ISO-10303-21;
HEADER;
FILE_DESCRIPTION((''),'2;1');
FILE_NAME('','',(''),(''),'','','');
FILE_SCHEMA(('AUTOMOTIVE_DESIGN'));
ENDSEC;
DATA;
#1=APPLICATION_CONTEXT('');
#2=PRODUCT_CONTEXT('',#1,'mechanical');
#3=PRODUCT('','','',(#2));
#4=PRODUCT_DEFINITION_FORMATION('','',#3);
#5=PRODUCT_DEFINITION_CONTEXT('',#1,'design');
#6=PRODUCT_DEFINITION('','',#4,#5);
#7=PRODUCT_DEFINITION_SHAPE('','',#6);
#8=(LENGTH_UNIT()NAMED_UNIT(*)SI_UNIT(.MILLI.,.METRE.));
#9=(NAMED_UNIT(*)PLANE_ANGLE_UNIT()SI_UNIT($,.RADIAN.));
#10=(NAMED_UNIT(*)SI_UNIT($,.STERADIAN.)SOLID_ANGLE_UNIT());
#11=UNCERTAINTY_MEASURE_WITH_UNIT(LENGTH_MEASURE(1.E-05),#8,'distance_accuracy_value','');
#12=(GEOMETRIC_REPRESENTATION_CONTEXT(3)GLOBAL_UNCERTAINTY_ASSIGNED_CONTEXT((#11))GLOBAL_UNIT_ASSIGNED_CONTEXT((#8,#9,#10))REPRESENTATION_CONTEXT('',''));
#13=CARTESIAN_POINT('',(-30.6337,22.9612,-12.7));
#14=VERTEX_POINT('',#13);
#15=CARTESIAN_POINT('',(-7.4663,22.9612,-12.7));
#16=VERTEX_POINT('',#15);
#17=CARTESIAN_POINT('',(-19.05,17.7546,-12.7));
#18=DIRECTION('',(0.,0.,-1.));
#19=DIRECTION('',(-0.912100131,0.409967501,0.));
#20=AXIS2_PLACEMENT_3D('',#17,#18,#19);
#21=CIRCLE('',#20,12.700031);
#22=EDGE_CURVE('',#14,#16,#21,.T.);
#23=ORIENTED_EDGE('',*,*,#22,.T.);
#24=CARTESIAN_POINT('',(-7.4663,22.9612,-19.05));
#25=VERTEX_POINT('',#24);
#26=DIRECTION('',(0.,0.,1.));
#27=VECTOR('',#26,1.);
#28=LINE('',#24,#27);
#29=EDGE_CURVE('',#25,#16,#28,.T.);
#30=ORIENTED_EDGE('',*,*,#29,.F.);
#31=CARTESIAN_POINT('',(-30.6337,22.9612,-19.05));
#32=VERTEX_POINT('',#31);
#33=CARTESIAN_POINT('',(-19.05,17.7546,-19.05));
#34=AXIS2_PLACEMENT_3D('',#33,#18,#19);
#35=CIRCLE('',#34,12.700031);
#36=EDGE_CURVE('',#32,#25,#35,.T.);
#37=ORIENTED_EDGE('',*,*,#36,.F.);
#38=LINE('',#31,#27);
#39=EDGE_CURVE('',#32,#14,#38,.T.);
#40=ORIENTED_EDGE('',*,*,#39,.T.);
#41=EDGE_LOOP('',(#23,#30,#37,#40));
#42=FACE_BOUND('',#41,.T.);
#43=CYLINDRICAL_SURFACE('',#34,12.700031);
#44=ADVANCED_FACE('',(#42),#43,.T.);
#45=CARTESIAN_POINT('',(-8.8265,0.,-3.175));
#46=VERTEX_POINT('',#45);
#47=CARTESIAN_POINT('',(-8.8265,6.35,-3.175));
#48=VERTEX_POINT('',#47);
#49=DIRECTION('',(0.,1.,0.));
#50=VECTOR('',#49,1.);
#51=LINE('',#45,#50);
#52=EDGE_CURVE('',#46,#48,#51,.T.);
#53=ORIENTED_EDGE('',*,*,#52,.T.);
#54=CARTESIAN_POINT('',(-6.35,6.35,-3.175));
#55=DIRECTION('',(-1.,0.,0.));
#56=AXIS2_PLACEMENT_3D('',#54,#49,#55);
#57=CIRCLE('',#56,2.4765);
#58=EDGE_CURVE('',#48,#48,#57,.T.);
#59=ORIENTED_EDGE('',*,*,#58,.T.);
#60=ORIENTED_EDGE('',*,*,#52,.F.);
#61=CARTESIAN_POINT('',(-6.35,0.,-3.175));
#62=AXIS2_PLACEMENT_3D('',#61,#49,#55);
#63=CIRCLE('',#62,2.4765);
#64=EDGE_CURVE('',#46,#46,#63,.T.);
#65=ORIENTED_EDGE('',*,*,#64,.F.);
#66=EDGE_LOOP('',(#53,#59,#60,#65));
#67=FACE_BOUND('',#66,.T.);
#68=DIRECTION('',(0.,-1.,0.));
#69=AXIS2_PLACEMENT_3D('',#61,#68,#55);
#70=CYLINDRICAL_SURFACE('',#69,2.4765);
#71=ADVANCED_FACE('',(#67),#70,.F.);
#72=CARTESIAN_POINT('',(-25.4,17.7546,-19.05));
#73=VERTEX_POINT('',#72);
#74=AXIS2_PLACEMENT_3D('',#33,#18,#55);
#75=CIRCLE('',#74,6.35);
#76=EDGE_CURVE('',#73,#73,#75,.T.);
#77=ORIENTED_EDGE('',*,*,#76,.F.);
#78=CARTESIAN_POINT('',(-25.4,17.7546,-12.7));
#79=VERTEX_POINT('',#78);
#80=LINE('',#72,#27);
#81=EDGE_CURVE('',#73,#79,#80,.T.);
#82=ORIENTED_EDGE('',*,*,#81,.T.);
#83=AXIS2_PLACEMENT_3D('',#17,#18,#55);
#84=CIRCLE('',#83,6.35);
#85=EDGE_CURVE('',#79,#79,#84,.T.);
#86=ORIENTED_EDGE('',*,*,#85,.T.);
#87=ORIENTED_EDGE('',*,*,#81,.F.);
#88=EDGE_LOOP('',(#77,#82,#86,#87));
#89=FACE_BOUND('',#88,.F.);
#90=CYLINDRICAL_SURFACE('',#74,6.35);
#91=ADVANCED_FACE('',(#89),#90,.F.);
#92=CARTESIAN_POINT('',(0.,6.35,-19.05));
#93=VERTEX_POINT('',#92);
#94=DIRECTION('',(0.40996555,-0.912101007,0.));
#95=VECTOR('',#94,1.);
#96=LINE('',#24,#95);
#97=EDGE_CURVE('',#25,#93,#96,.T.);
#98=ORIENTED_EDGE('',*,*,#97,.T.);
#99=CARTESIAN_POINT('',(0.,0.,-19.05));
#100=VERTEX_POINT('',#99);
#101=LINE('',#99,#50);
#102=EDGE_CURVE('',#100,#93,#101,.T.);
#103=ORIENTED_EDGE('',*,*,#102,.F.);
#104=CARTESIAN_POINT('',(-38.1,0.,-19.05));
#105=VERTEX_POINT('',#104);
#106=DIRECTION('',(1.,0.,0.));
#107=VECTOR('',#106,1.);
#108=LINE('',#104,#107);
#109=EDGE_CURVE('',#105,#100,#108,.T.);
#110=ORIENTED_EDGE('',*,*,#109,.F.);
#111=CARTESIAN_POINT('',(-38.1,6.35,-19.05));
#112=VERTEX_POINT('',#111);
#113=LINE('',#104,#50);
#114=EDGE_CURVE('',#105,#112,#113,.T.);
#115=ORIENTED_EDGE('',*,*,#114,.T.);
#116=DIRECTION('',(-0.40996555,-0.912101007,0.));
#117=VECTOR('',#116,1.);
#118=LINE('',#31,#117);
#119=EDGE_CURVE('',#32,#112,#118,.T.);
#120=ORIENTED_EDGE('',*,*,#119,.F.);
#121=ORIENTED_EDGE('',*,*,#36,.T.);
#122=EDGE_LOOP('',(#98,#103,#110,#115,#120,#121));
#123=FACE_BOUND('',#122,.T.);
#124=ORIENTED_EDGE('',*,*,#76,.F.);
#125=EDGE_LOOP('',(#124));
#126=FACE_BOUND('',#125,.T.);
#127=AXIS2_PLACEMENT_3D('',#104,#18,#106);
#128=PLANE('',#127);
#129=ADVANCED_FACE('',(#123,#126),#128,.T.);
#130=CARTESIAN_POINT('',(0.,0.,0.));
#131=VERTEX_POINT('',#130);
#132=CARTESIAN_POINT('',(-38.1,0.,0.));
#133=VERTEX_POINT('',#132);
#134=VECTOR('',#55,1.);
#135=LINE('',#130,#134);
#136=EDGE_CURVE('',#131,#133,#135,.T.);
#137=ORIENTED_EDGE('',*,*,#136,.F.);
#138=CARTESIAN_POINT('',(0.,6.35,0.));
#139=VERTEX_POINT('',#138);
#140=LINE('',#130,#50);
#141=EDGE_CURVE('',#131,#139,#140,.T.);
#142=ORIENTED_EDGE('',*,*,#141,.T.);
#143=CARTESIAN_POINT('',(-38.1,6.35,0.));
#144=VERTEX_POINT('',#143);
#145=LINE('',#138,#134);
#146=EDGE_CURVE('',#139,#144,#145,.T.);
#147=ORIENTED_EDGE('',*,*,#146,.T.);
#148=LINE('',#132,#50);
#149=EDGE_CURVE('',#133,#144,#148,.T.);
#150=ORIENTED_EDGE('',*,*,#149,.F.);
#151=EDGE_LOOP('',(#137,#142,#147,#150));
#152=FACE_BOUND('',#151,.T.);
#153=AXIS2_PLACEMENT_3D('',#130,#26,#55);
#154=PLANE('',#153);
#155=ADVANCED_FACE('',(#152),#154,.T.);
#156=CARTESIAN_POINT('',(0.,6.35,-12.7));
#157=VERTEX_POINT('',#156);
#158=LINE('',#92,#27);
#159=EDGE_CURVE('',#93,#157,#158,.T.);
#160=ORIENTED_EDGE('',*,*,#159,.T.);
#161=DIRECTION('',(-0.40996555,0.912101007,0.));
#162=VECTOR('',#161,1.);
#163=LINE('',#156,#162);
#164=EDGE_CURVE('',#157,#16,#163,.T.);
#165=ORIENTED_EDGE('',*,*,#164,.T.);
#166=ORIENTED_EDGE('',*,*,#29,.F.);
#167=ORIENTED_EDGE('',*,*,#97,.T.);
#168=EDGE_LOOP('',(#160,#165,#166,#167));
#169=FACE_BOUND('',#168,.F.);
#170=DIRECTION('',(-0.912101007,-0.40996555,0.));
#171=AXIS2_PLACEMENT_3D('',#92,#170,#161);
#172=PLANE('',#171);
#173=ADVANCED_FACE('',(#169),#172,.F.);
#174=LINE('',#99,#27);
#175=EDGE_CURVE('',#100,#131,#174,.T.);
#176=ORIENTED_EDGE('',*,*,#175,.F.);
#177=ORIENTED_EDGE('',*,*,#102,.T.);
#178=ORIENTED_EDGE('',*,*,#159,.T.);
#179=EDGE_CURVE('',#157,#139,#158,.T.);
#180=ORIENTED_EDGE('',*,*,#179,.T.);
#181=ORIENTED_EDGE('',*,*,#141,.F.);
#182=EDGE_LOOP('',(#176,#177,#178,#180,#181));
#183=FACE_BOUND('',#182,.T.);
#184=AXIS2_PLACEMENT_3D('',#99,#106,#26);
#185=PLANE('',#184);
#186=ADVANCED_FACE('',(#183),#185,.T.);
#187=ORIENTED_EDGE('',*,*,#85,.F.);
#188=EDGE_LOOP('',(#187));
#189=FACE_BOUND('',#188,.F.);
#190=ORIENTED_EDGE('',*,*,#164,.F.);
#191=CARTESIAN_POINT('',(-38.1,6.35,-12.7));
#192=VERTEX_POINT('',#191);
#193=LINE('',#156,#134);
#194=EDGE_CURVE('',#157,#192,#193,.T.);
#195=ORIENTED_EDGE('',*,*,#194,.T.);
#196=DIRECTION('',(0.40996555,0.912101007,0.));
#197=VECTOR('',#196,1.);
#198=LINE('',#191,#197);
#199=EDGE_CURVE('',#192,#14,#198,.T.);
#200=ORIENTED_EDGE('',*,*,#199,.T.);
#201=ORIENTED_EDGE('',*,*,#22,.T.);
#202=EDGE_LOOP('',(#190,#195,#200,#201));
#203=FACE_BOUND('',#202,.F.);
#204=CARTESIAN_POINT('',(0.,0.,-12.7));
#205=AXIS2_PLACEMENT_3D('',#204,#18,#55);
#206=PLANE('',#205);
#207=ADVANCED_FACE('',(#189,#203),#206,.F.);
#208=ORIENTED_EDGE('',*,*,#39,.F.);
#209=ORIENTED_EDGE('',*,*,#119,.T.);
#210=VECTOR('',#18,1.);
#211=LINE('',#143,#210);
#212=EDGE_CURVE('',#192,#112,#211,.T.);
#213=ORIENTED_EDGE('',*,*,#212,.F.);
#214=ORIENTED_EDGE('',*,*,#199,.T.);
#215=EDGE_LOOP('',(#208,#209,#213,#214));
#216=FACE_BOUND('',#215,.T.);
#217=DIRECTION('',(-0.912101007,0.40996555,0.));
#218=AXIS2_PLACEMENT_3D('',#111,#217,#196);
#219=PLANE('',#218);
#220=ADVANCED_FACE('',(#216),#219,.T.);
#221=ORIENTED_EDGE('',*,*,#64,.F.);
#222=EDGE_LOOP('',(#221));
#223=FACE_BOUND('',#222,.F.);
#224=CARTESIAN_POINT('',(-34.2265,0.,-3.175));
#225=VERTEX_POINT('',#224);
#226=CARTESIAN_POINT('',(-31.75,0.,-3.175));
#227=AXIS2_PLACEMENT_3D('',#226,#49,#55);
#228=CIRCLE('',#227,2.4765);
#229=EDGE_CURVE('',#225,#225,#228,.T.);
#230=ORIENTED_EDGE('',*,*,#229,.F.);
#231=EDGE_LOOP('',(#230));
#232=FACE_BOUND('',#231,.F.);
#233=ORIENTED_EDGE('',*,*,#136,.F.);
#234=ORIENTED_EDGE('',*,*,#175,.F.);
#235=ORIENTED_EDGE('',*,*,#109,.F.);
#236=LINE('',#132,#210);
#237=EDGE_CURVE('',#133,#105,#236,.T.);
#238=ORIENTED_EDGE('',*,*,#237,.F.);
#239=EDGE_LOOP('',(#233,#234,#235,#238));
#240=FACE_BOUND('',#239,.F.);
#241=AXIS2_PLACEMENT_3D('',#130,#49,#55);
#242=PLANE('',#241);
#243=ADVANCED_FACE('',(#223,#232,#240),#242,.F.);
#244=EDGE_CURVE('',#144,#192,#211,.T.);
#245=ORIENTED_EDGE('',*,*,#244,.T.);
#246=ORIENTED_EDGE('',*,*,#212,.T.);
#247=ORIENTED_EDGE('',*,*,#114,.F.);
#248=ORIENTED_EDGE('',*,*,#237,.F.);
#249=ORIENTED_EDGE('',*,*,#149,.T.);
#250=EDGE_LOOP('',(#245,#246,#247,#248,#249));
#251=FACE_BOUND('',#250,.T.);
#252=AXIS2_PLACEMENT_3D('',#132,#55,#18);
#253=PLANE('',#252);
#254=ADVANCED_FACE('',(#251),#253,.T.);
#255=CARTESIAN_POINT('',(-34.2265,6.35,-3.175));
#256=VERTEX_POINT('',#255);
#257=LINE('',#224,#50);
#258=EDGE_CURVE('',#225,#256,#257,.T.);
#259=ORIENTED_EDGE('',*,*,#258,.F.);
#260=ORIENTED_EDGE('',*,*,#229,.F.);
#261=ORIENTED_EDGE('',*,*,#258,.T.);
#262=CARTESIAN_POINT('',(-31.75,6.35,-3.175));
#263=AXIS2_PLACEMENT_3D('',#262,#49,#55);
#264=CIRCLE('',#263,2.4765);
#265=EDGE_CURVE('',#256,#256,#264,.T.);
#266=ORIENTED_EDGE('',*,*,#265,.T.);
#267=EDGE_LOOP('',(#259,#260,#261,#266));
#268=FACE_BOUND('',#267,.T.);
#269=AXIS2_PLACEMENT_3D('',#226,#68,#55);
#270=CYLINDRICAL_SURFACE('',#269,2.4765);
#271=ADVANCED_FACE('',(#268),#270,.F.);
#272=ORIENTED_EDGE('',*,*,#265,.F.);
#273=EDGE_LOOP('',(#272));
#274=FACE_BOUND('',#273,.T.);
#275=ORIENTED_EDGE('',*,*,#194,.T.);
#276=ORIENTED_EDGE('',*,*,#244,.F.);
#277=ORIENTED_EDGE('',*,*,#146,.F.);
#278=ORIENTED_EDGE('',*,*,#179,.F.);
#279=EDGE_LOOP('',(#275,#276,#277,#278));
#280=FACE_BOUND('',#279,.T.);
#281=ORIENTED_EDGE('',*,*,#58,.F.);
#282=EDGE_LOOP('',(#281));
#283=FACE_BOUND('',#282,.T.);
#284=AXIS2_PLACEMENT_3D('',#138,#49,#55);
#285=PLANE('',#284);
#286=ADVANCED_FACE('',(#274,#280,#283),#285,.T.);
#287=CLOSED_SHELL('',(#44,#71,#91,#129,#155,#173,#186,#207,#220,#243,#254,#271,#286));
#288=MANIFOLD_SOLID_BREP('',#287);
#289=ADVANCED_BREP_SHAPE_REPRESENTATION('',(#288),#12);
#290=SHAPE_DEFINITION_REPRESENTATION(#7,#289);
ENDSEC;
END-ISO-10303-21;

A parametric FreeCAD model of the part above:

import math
import FreeCAD as App
import Part
import Sketcher
Q = App.Units.Quantity


def add_polygon(sketch, points):
    """Adds a closed chain of lines whose ends are joined by coincident constraints."""
    first, n = sketch.GeometryCount, len(points)
    for a, b in zip(points, points[1:] + points[:1]):
        sketch.addGeometry(Part.LineSegment(App.Vector(*a, 0), App.Vector(*b, 0)), False)
    for i in range(n):
        sketch.addConstraint(Sketcher.Constraint("Coincident", first + i, 2, first + (i + 1) % n, 1))

doc = App.newDocument("Part")
params = doc.addObject("Spreadsheet::Sheet", "Params")
for row, (alias, value) in enumerate([
    ("sketch1_diameter", "0.195 in"),
    ("sketch1_height", "0.75 in"),
    ("pad1_length", "0.25 in"),
    ("sketch2_diameter", "0.5 in"),
    ("sketch2_radius", "0.5 in"),
    ("sketch2_width", "1.5 in"),
    ("sketch2_length", "0.717 in"),
    ("pad2_length", "0.25 in"),
], start=1):
    params.set(f"A{row}", alias)
    params.set(f"B{row}", "=" + value)
    params.setAlias(f"B{row}", alias)

body = doc.addObject("PartDesign::Body", "Body")

sketch1 = doc.addObject("Sketcher::SketchObject", "Sketch")
body.addObject(sketch1)
sketch1.AttachmentSupport = (doc.XZ_Plane, [""])
sketch1.MapMode = "FlatFace"
add_polygon(sketch1, [(-38.1, 0), (0, 0), (0, -19.05), (-38.1, -19.05)])
sketch1.addGeometry(Part.Circle(App.Vector(-6.35, -3.175, 0), App.Vector(0, 0, 1), 2.4765), False)
sketch1.addGeometry(Part.Circle(App.Vector(-31.75, -3.175, 0), App.Vector(0, 0, 1), 2.4765), False)
sketch1.addConstraint([
    Sketcher.Constraint("Horizontal", 0),
    Sketcher.Constraint("Vertical", 1),
    Sketcher.Constraint("Horizontal", 2),
    Sketcher.Constraint("Vertical", 3),
    Sketcher.Constraint("Coincident", 0, 2, -1, 1),
    Sketcher.Constraint("Equal", 4, 5),
    Sketcher.Constraint("Horizontal", 4, 3, 5, 3),
    Sketcher.Constraint("Diameter", 4, Q("0.195 in")),
    Sketcher.Constraint("DistanceX", 5, 3, 4, 3, Q("1 in")),
    Sketcher.Constraint("DistanceY", 1, 2, 1, 1, Q("0.75 in")),
    Sketcher.Constraint("DistanceX", 4, 3, -1, 1, Q("0.25 in")),
    Sketcher.Constraint("DistanceX", 2, 2, 5, 3, Q("0.25 in")),
    Sketcher.Constraint("DistanceY", 4, 3, -1, 1, Q("0.125 in")),
])
sketch1.setExpression("Constraints[11]", "Params.sketch1_diameter")
sketch1.setExpression("Constraints[13]", "Params.sketch1_height")
pad1 = doc.addObject("PartDesign::Pad", "Pad")
body.addObject(pad1)
pad1.Profile = sketch1
pad1.setExpression("Length", "Params.pad1_length")
pad1.Reversed = True

sketch2 = doc.addObject("Sketcher::SketchObject", "Sketch001")
body.addObject(sketch2)
sketch2.AttachmentSupport = (doc.XY_Plane, [""])
sketch2.MapMode = "FlatFace"
sketch2.AttachmentOffset = App.Placement(App.Vector(0, 0, -0.75 * 25.4), App.Rotation())
sketch2.addGeometry([
    Part.LineSegment(App.Vector(-38.1, 6.35, 0), App.Vector(-30.6337, 22.9612, 0)),
    Part.ArcOfCircle(Part.Circle(App.Vector(-19.05, 17.7546, 0), App.Vector(0, 0, 1), 12.700031), math.radians(24.202793), math.radians(155.797207)),
    Part.LineSegment(App.Vector(-7.4663, 22.9612, 0), App.Vector(0, 6.35, 0)),
    Part.LineSegment(App.Vector(0, 6.35, 0), App.Vector(-38.1, 6.35, 0)),
    Part.Circle(App.Vector(-19.05, 17.7546, 0), App.Vector(0, 0, 1), 6.35),
], False)
sketch2.addConstraint([
    Sketcher.Constraint("Tangent", 0, 2, 1, 2),
    Sketcher.Constraint("Tangent", 1, 1, 2, 1),
    Sketcher.Constraint("Coincident", 2, 2, 3, 1),
    Sketcher.Constraint("Coincident", 3, 2, 0, 1),
    Sketcher.Constraint("Horizontal", 3),
    Sketcher.Constraint("Coincident", 4, 3, 1, 3),
    Sketcher.Constraint("PointOnObject", 2, 2, -2),
    Sketcher.Constraint("Horizontal", 0, 2, 1, 1),
    Sketcher.Constraint("Diameter", 4, Q("0.5 in")),
    Sketcher.Constraint("Radius", 1, Q("0.5 in")),
    Sketcher.Constraint("DistanceY", -1, 1, 2, 2, Q("0.25 in")),
    Sketcher.Constraint("DistanceX", 3, 2, 3, 1, Q("1.5 in")),
    Sketcher.Constraint("Distance", 0, Q("0.717 in")),
])
sketch2.setExpression("Constraints[8]", "Params.sketch2_diameter")
sketch2.setExpression("Constraints[9]", "Params.sketch2_radius")
sketch2.setExpression("Constraints[11]", "Params.sketch2_width")
sketch2.setExpression("Constraints[12]", "Params.sketch2_length")
pad2 = doc.addObject("PartDesign::Pad", "Pad001")
body.addObject(pad2)
pad2.Profile = sketch2
pad2.setExpression("Length", "Params.pad2_length")

doc.recompute()
